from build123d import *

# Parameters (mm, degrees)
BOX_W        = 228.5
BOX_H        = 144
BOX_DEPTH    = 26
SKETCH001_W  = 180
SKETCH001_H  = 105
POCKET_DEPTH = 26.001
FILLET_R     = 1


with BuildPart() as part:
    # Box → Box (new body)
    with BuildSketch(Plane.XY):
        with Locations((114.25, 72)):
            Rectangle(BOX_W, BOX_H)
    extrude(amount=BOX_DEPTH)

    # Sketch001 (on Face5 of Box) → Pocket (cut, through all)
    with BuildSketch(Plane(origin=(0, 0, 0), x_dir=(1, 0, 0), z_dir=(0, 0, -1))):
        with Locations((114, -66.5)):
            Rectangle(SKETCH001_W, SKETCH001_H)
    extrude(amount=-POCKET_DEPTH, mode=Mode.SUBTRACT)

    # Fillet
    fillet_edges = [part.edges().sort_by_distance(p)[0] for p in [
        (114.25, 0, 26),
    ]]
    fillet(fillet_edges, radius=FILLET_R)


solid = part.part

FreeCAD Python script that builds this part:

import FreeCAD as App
import Part
import Sketcher
Q = App.Units.Quantity


def edges_at(feature, points):
    """Names of the edges that pass closest to the given points."""
    edges = feature.Shape.Edges
    near = lambda p: min(range(len(edges)), key=lambda i: edges[i].distToShape(Part.Vertex(*p))[0])
    return sorted({f"Edge{near(p) + 1}" for p in points})


def add_polygon(sketch, points):
    """Adds a closed chain of lines whose ends are joined by coincident constraints."""
    first, n = sketch.GeometryCount, len(points)
    for a, b in zip(points, points[1:] + points[:1]):
        sketch.addGeometry(Part.LineSegment(App.Vector(*a, 0), App.Vector(*b, 0)), False)
    for i in range(n):
        sketch.addConstraint(Sketcher.Constraint("Coincident", first + i, 2, first + (i + 1) % n, 1))

doc = App.newDocument("Part")
body = doc.addObject("PartDesign::Body", "Body")

sketch1 = body.newObject("Sketcher::SketchObject", "Sketch")
sketch1.AttachmentSupport = (doc.getObject("XY_Plane"), [""])
sketch1.MapMode = "FlatFace"
add_polygon(sketch1, [(0, 144), (0, 0), (228.5, 0), (228.5, 144)])
sketch1.addConstraint([
    Sketcher.Constraint("Vertical", 0),
    Sketcher.Constraint("Horizontal", 1),
    Sketcher.Constraint("Vertical", 2),
    Sketcher.Constraint("Horizontal", 3),
    Sketcher.Constraint("Coincident", 0, 2, -1, 1),
    Sketcher.Constraint("DistanceY", 0, 2, 0, 1, Q("144 mm")),
    Sketcher.Constraint("DistanceX", 1, 1, 1, 2, Q("228.5 mm")),
])
pad1 = body.newObject("PartDesign::Pad", "Pad")
pad1.Profile = sketch1
pad1.Length = 26

sketch2 = body.newObject("Sketcher::SketchObject", "Sketch001")
sketch2.AttachmentSupport = (doc.getObject("XY_Plane"), [""])
sketch2.MapMode = "FlatFace"
add_polygon(sketch2, [(24, 14), (24, 119), (204, 119), (204, 14)])
sketch2.addConstraint([
    Sketcher.Constraint("Vertical", 0),
    Sketcher.Constraint("Horizontal", 1),
    Sketcher.Constraint("Vertical", 2),
    Sketcher.Constraint("Horizontal", 3),
    Sketcher.Constraint("DistanceX", 1, 1, 1, 2, Q("180 mm")),
    Sketcher.Constraint("DistanceY", 0, 1, 0, 2, Q("105 mm")),
    Sketcher.Constraint("DistanceX", -1, 1, 0, 2, Q("24 mm")),
    Sketcher.Constraint("DistanceY", -1, 1, 0, 2, Q("119 mm")),
])
pocket1 = body.newObject("PartDesign::Pocket", "Pocket")
pocket1.Profile = sketch2
pocket1.Type = "ThroughAll"
pocket1.Reversed = True
doc.recompute()

fillet = body.newObject("PartDesign::Fillet", "Fillet")
fillet.Base = (pocket1, edges_at(pocket1, [(114.25, 0, 26)]))
fillet.Radius = 1

doc.recompute()
